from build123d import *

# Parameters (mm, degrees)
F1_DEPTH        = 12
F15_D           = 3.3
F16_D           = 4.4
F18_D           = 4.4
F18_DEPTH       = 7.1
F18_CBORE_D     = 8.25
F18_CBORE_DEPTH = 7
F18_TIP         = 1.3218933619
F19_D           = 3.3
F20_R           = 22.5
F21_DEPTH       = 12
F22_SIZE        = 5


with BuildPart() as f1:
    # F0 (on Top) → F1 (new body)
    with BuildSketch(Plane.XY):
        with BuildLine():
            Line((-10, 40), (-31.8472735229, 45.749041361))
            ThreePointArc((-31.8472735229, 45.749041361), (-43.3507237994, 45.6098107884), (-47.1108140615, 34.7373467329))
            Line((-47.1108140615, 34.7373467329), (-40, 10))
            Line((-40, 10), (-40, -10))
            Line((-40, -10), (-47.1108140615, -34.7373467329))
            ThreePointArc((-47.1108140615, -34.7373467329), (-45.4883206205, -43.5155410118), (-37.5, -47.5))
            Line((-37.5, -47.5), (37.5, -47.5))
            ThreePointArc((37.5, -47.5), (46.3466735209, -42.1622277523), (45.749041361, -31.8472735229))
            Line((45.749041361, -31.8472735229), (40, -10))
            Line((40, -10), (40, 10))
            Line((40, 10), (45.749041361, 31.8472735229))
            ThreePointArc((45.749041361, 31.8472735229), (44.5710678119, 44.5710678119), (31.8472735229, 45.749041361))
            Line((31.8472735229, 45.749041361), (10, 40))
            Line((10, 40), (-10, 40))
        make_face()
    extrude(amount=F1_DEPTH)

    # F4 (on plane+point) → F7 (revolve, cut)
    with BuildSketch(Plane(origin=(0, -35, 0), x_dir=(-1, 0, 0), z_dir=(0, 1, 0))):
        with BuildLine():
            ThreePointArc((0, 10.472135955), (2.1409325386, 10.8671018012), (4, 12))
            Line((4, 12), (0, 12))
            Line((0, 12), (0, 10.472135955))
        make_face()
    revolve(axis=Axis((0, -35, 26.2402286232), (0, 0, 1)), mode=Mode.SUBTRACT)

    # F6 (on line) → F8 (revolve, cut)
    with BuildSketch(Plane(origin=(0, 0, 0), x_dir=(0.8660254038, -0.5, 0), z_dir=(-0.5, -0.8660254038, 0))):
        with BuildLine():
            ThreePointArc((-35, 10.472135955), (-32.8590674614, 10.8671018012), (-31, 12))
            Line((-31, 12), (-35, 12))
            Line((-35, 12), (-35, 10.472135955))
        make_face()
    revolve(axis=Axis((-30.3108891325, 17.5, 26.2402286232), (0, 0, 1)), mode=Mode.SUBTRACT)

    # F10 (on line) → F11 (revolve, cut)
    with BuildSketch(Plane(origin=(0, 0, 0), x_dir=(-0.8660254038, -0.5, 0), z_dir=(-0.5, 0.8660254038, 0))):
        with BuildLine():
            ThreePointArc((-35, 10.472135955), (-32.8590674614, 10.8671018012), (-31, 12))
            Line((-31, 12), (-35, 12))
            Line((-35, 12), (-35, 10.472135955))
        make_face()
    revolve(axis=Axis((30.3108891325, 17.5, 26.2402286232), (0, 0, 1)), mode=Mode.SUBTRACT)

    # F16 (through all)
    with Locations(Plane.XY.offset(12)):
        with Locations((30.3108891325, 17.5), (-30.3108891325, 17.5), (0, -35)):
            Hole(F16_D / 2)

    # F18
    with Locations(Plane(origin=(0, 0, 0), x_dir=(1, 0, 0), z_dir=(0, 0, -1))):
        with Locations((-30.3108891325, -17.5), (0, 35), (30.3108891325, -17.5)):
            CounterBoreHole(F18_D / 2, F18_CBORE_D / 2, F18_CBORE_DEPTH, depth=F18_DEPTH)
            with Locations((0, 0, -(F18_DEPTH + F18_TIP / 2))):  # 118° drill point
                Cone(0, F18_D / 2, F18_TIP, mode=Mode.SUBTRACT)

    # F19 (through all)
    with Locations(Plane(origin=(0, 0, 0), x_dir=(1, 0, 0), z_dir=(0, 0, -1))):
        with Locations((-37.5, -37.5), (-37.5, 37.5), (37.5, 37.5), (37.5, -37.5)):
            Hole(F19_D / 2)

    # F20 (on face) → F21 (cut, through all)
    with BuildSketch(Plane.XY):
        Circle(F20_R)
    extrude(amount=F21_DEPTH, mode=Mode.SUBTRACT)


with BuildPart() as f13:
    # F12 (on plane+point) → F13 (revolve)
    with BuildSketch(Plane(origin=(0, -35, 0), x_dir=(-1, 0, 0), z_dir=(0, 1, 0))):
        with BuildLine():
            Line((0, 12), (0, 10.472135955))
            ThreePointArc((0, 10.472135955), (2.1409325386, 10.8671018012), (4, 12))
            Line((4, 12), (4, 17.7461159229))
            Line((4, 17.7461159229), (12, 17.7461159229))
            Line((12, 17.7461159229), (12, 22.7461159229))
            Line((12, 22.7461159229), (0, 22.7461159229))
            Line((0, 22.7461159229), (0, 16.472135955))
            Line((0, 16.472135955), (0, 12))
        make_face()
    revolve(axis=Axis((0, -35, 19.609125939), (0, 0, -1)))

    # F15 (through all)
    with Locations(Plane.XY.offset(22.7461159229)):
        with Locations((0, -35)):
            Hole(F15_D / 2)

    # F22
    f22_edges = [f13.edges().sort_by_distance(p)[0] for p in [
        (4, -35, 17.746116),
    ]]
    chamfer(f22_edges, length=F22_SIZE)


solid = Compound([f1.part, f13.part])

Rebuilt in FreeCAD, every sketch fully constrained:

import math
import FreeCAD as App
import Part
import Sketcher


def edges_at(feature, points):
    """Names of the edges that pass closest to the given points."""
    edges = feature.Shape.Edges
    near = lambda p: min(range(len(edges)), key=lambda i: edges[i].distToShape(Part.Vertex(*p))[0])
    return sorted({f"Edge{near(p) + 1}" for p in points})

doc = App.newDocument("Part")
params = doc.addObject("Spreadsheet::Sheet", "Params")
for row, (alias, value) in enumerate([
    ("sketch1_radius", "10 mm"),
    ("sketch1_width", "75 mm"),
    ("sketch1_width2", "20 mm"),
    ("pad1_length", "12 mm"),
    ("sketch2_radius", "6 mm"),
    ("sketch2_width", "4 mm"),
    ("groove_angle", "360 deg"),
    ("sketch3_radius", "6 mm"),
    ("sketch3_width", "4 mm"),
    ("groove2_angle", "360 deg"),
    ("sketch4_radius", "6 mm"),
    ("sketch4_width", "4 mm"),
    ("groove3_angle", "360 deg"),
    ("sketch5_diameter", "4.4 mm"),
    ("hole_diameter", "4.4 mm"),
    ("sketch6_diameter", "4.4 mm"),
    ("hole2_diameter", "4.4 mm"),
    ("hole2_depth", "7.1 mm"),
    ("hole2_cbore_diameter", "8.25 mm"),
    ("hole2_cbore_depth", "7 mm"),
    ("sketch7_diameter", "3.3 mm"),
    ("hole3_diameter", "3.3 mm"),
    ("sketch8_diameter", "45 mm"),
    ("sketch9_radius", "6 mm"),
    ("sketch9_width", "8 mm"),
    ("sketch9_width2", "12 mm"),
    ("sketch9_height", "5 mm"),
    ("revolution_angle", "360 deg"),
    ("sketch10_diameter", "3.3 mm"),
    ("hole4_diameter", "3.3 mm"),
    ("chamfer_size", "5 mm"),
], start=1):
    params.set(f"A{row}", alias)
    params.set(f"B{row}", "=" + value)
    params.setAlias(f"B{row}", alias)

body = doc.addObject("PartDesign::Body", "Body")

# Sketch on XY plane
sketch1 = body.newObject("Sketcher::SketchObject", "Sketch")
sketch1.AttachmentSupport = (doc.getObject("XY_Plane"), [""])
sketch1.MapMode = "FlatFace"
sketch1.addGeometry(Part.LineSegment(App.Vector(-10, 40, 0), App.Vector(-32, 46, 0)), False)
sketch1.addGeometry(Part.ArcOfCircle(Part.Circle(App.Vector(-38, 38, 0), App.Vector(0, 0, 1), 10), math.radians(56), math.radians(196)), False)
sketch1.addGeometry(Part.LineSegment(App.Vector(-47, 35, 0), App.Vector(-40, 10, 0)), False)
sketch1.addGeometry(Part.LineSegment(App.Vector(-40, 10, 0), App.Vector(-40, -10, 0)), False)
sketch1.addGeometry(Part.LineSegment(App.Vector(-40, -10, 0), App.Vector(-47, -35, 0)), False)
sketch1.addGeometry(Part.ArcOfCircle(Part.Circle(App.Vector(-38, -38, 0), App.Vector(0, 0, 1), 10), math.radians(164), math.radians(270)), False)
sketch1.addGeometry(Part.LineSegment(App.Vector(-38, -48, 0), App.Vector(38, -48, 0)), False)
sketch1.addGeometry(Part.ArcOfCircle(Part.Circle(App.Vector(38, -38, 0), App.Vector(0, 0, 1), 10), math.radians(-90), math.radians(34)), False)
sketch1.addGeometry(Part.LineSegment(App.Vector(46, -32, 0), App.Vector(40, -10, 0)), False)
sketch1.addGeometry(Part.LineSegment(App.Vector(40, -10, 0), App.Vector(40, 10, 0)), False)
sketch1.addGeometry(Part.LineSegment(App.Vector(40, 10, 0), App.Vector(46, 32, 0)), False)
sketch1.addGeometry(Part.ArcOfCircle(Part.Circle(App.Vector(38, 38, 0), App.Vector(0, 0, 1), 10), math.radians(-34), math.radians(124)), False)
sketch1.addGeometry(Part.LineSegment(App.Vector(32, 46, 0), App.Vector(10, 40, 0)), False)
sketch1.addGeometry(Part.LineSegment(App.Vector(10, 40, 0), App.Vector(-10, 40, 0)), False)
sketch1.addConstraint(Sketcher.Constraint("Coincident", 0, 2, 1, 1))
sketch1.addConstraint(Sketcher.Constraint("Tangent", 1, 2, 2, 1))
sketch1.addConstraint(Sketcher.Constraint("Coincident", 2, 2, 3, 1))
sketch1.addConstraint(Sketcher.Constraint("Coincident", 3, 2, 4, 1))
sketch1.addConstraint(Sketcher.Constraint("Tangent", 4, 2, 5, 1))
sketch1.addConstraint(Sketcher.Constraint("Tangent", 5, 2, 6, 1))
sketch1.addConstraint(Sketcher.Constraint("Tangent", 6, 2, 7, 1))
sketch1.addConstraint(Sketcher.Constraint("Coincident", 7, 2, 8, 1))
sketch1.addConstraint(Sketcher.Constraint("Coincident", 8, 2, 9, 1))
sketch1.addConstraint(Sketcher.Constraint("Coincident", 9, 2, 10, 1))
sketch1.addConstraint(Sketcher.Constraint("Coincident", 10, 2, 11, 1))
sketch1.addConstraint(Sketcher.Constraint("Coincident", 11, 2, 12, 1))
sketch1.addConstraint(Sketcher.Constraint("Coincident", 12, 2, 13, 1))
sketch1.addConstraint(Sketcher.Constraint("Coincident", 13, 2, 0, 1))
sketch1.addConstraint(Sketcher.Constraint("Vertical", 3))
sketch1.addConstraint(Sketcher.Constraint("Horizontal", 6))
sketch1.addConstraint(Sketcher.Constraint("Vertical", 9))
sketch1.addConstraint(Sketcher.Constraint("Horizontal", 13))
sketch1.addConstraint(Sketcher.Constraint("Equal", 1, 5))
sketch1.addConstraint(Sketcher.Constraint("Equal", 5, 7))
sketch1.addConstraint(Sketcher.Constraint("Equal", 7, 11))
sketch1.addConstraint(Sketcher.Constraint("Symmetric", 1, 3, 7, 3, -1, 1))
sketch1.addConstraint(Sketcher.Constraint("Symmetric", 5, 3, 11, 3, -1, 1))
sketch1.addConstraint(Sketcher.Constraint("Symmetric", 2, 2, 8, 2, -1, 1))
sketch1.addConstraint(Sketcher.Constraint("Symmetric", 0, 2, 11, 2, -2))
sketch1.addConstraint(Sketcher.Constraint("Perpendicular", 0, 10))
sketch1.addConstraint(Sketcher.Constraint("Perpendicular", 8, 12))
sketch1.addConstraint(Sketcher.Constraint("Horizontal", 3, 2, 8, 2))
sketch1.addConstraint(Sketcher.Constraint("Horizontal", 2, 2, 9, 2))
sketch1.addConstraint(Sketcher.Constraint("Vertical", 7, 2, 10, 2))
sketch1.addConstraint(Sketcher.Constraint("Equal", 13, 3))
sketch1.addConstraint(Sketcher.Constraint("Equal", 0, 8))
sketch1.addConstraint(Sketcher.Constraint("Radius", 1, 10.0))
sketch1.addConstraint(Sketcher.Constraint("DistanceX", 6, 1, 6, 2, 75.0))
sketch1.addConstraint(Sketcher.Constraint("DistanceX", 13, 2, 13, 1, 20.0))
sketch1.addConstraint(Sketcher.Constraint("DistanceX", 2, 2, -1, 1, 40.0))
sketch1.addConstraint(Sketcher.Constraint("DistanceY", -1, 1, 12, 2, 40.0))
sketch1.addConstraint(Sketcher.Constraint("DistanceY", -1, 1, 0, 2, 45.749041))
sketch1.setExpression("Constraints[32]", "Params.sketch1_radius")
sketch1.setExpression("Constraints[33]", "Params.sketch1_width")
sketch1.setExpression("Constraints[34]", "Params.sketch1_width2")
pad1 = body.newObject("PartDesign::Pad", "Pad")
pad1.Profile = sketch1
pad1.setExpression("Length", "Params.pad1_length")

# Sketch on XZ plane
sketch2 = body.newObject("Sketcher::SketchObject", "Sketch001")
sketch2.AttachmentSupport = (doc.getObject("XZ_Plane"), [""])
sketch2.MapMode = "FlatFace"
sketch2.AttachmentOffset = App.Placement(App.Vector(0, 0, 35), App.Rotation())
sketch2.addGeometry(Part.ArcOfCircle(Part.Circle(App.Vector(0, 16.5, 0), App.Vector(0, 0, 1), 6), math.radians(-132), math.radians(-90)), False)
sketch2.addGeometry(Part.LineSegment(App.Vector(-4, 12, 0), App.Vector(0, 12, 0)), False)
sketch2.addGeometry(Part.LineSegment(App.Vector(0, 12, 0), App.Vector(0, 10.5, 0)), False)
sketch2.addConstraint(Sketcher.Constraint("Coincident", 0, 1, 1, 1))
sketch2.addConstraint(Sketcher.Constraint("Coincident", 1, 2, 2, 1))
sketch2.addConstraint(Sketcher.Constraint("Coincident", 2, 2, 0, 2))
sketch2.addConstraint(Sketcher.Constraint("Horizontal", 1))
sketch2.addConstraint(Sketcher.Constraint("Vertical", 2))
sketch2.addConstraint(Sketcher.Constraint("PointOnObject", 0, 3, -2))
sketch2.addConstraint(Sketcher.Constraint("PointOnObject", 1, 2, -2))
sketch2.addConstraint(Sketcher.Constraint("Radius", 0, 6.0))
sketch2.addConstraint(Sketcher.Constraint("DistanceX", 1, 1, 1, 2, 4.0))
sketch2.addConstraint(Sketcher.Constraint("DistanceY", -1, 1, 0, 1, 12.0))
sketch2.setExpression("Constraints[7]", "Params.sketch2_radius")
sketch2.setExpression("Constraints[8]", "Params.sketch2_width")
groove = body.newObject("PartDesign::Groove", "Groove")
groove.Profile = sketch2
groove.ReferenceAxis = (sketch2, ["V_Axis"])
groove.setExpression("Angle", "Params.groove_angle")

# Sketch on an angled plane
sketch3 = body.newObject("Sketcher::SketchObject", "Sketch002")
sketch3.Placement = App.Placement(App.Vector(0, 0, 0), App.Rotation(App.Vector(0.866025404, -0.5, 0), App.Vector(0, 0, 1), App.Vector(-0.5, -0.866025404, 0), "ZXY"))
sketch3.addGeometry(Part.ArcOfCircle(Part.Circle(App.Vector(-35, 16.5, 0), App.Vector(0, 0, 1), 6), math.radians(-90), math.radians(-48)), False)
sketch3.addGeometry(Part.LineSegment(App.Vector(-31, 12, 0), App.Vector(-35, 12, 0)), False)
sketch3.addGeometry(Part.LineSegment(App.Vector(-35, 12, 0), App.Vector(-35, 10.5, 0)), False)
sketch3.addGeometry(Part.LineSegment(App.Vector(-35, 10.5, 0), App.Vector(-35, 16.5, 0)), True)  # axis
sketch3.addConstraint(Sketcher.Constraint("Coincident", 0, 2, 1, 1))
sketch3.addConstraint(Sketcher.Constraint("Coincident", 1, 2, 2, 1))
sketch3.addConstraint(Sketcher.Constraint("Coincident", 2, 2, 0, 1))
sketch3.addConstraint(Sketcher.Constraint("Horizontal", 1))
sketch3.addConstraint(Sketcher.Constraint("Vertical", 2))
sketch3.addConstraint(Sketcher.Constraint("Vertical", 3))
sketch3.addConstraint(Sketcher.Constraint("Coincident", 3, 1, 2, 2))
sketch3.addConstraint(Sketcher.Constraint("Coincident", 3, 2, 0, 3))
sketch3.addConstraint(Sketcher.Constraint("Radius", 0, 6.0))
sketch3.addConstraint(Sketcher.Constraint("DistanceX", 1, 2, 1, 1, 4.0))
sketch3.addConstraint(Sketcher.Constraint("DistanceX", 0, 3, -1, 1, 35.0))
sketch3.addConstraint(Sketcher.Constraint("DistanceY", -1, 1, 0, 2, 12.0))
sketch3.setExpression("Constraints[8]", "Params.sketch3_radius")
sketch3.setExpression("Constraints[9]", "Params.sketch3_width")
groove2 = body.newObject("PartDesign::Groove", "Groove001")
groove2.Profile = sketch3
groove2.ReferenceAxis = (sketch3, ["Axis0"])
groove2.setExpression("Angle", "Params.groove2_angle")

# Sketch on an angled plane
sketch4 = body.newObject("Sketcher::SketchObject", "Sketch003")
sketch4.Placement = App.Placement(App.Vector(0, 0, 0), App.Rotation(App.Vector(-0.866025404, -0.5, 0), App.Vector(0, 0, 1), App.Vector(-0.5, 0.866025404, 0), "ZXY"))
sketch4.addGeometry(Part.ArcOfCircle(Part.Circle(App.Vector(-35, 16.5, 0), App.Vector(0, 0, 1), 6), math.radians(-90), math.radians(-48)), False)
sketch4.addGeometry(Part.LineSegment(App.Vector(-31, 12, 0), App.Vector(-35, 12, 0)), False)
sketch4.addGeometry(Part.LineSegment(App.Vector(-35, 12, 0), App.Vector(-35, 10.5, 0)), False)
sketch4.addGeometry(Part.LineSegment(App.Vector(-35, 10.5, 0), App.Vector(-35, 16.5, 0)), True)  # axis
sketch4.addConstraint(Sketcher.Constraint("Coincident", 0, 2, 1, 1))
sketch4.addConstraint(Sketcher.Constraint("Coincident", 1, 2, 2, 1))
sketch4.addConstraint(Sketcher.Constraint("Coincident", 2, 2, 0, 1))
sketch4.addConstraint(Sketcher.Constraint("Horizontal", 1))
sketch4.addConstraint(Sketcher.Constraint("Vertical", 2))
sketch4.addConstraint(Sketcher.Constraint("Vertical", 3))
sketch4.addConstraint(Sketcher.Constraint("Coincident", 3, 1, 2, 2))
sketch4.addConstraint(Sketcher.Constraint("Coincident", 3, 2, 0, 3))
sketch4.addConstraint(Sketcher.Constraint("Radius", 0, 6.0))
sketch4.addConstraint(Sketcher.Constraint("DistanceX", 1, 2, 1, 1, 4.0))
sketch4.addConstraint(Sketcher.Constraint("DistanceX", 0, 3, -1, 1, 35.0))
sketch4.addConstraint(Sketcher.Constraint("DistanceY", -1, 1, 0, 2, 12.0))
sketch4.setExpression("Constraints[8]", "Params.sketch4_radius")
sketch4.setExpression("Constraints[9]", "Params.sketch4_width")
groove3 = body.newObject("PartDesign::Groove", "Groove002")
groove3.Profile = sketch4
groove3.ReferenceAxis = (sketch4, ["Axis0"])
groove3.setExpression("Angle", "Params.groove3_angle")

# Sketch on XY plane
sketch5 = body.newObject("Sketcher::SketchObject", "Sketch004")
sketch5.AttachmentSupport = (doc.getObject("XY_Plane"), [""])
sketch5.MapMode = "FlatFace"
sketch5.AttachmentOffset = App.Placement(App.Vector(0, 0, 12), App.Rotation())
sketch5.addGeometry(Part.Circle(App.Vector(30.3, 17.5, 0), App.Vector(0, 0, 1), 2.2), False)
sketch5.addGeometry(Part.Circle(App.Vector(-30.3, 17.5, 0), App.Vector(0, 0, 1), 2.2), False)
sketch5.addGeometry(Part.Circle(App.Vector(0, -35, 0), App.Vector(0, 0, 1), 2.2), False)
sketch5.addConstraint(Sketcher.Constraint("Equal", 0, 1))
sketch5.addConstraint(Sketcher.Constraint("Equal", 1, 2))
sketch5.addConstraint(Sketcher.Constraint("Symmetric", 0, 3, 1, 3, -2))
sketch5.addConstraint(Sketcher.Constraint("PointOnObject", 2, 3, -2))
sketch5.addConstraint(Sketcher.Constraint("Diameter", 0, 4.4))
sketch5.addConstraint(Sketcher.Constraint("DistanceY", 2, 3, -1, 1, 35.0))
sketch5.addConstraint(Sketcher.Constraint("DistanceY", -1, 1, 0, 3, 17.5))
sketch5.addConstraint(Sketcher.Constraint("DistanceX", -1, 1, 0, 3, 30.310889))
sketch5.setExpression("Constraints[4]", "Params.sketch5_diameter")
doc.recompute()
hole = body.newObject("PartDesign::Hole", "Hole")
hole.Profile = sketch5
hole.ThreadType = "None"
hole.setExpression("Diameter", "Params.hole_diameter")
hole.DepthType = "ThroughAll"

# Sketch on XY plane
sketch6 = body.newObject("Sketcher::SketchObject", "Sketch005")
sketch6.AttachmentSupport = (doc.getObject("XY_Plane"), [""])
sketch6.MapMode = "FlatFace"
sketch6.addGeometry(Part.Circle(App.Vector(-30.3, 17.5, 0), App.Vector(0, 0, 1), 2.2), False)
sketch6.addGeometry(Part.Circle(App.Vector(0, -35, 0), App.Vector(0, 0, 1), 2.2), False)
sketch6.addGeometry(Part.Circle(App.Vector(30.3, 17.5, 0), App.Vector(0, 0, 1), 2.2), False)
sketch6.addConstraint(Sketcher.Constraint("Equal", 0, 1))
sketch6.addConstraint(Sketcher.Constraint("Equal", 1, 2))
sketch6.addConstraint(Sketcher.Constraint("Symmetric", 0, 3, 2, 3, -2))
sketch6.addConstraint(Sketcher.Constraint("PointOnObject", 1, 3, -2))
sketch6.addConstraint(Sketcher.Constraint("Diameter", 0, 4.4))
sketch6.addConstraint(Sketcher.Constraint("DistanceY", 1, 3, -1, 1, 35.0))
sketch6.addConstraint(Sketcher.Constraint("DistanceY", -1, 1, 0, 3, 17.5))
sketch6.addConstraint(Sketcher.Constraint("DistanceX", 0, 3, -1, 1, 30.310889))
sketch6.setExpression("Constraints[4]", "Params.sketch6_diameter")
doc.recompute()
hole2 = body.newObject("PartDesign::Hole", "Hole001")
hole2.Profile = sketch6
hole2.ThreadType = "None"
hole2.setExpression("Diameter", "Params.hole2_diameter")
hole2.DepthType = "Dimension"
hole2.setExpression("Depth", "Params.hole2_depth")
hole2.DrillPoint = "Angled"
hole2.DrillPointAngle = 118
hole2.HoleCutType = "Counterbore"
hole2.setExpression("HoleCutDiameter", "Params.hole2_cbore_diameter")
hole2.setExpression("HoleCutDepth", "Params.hole2_cbore_depth")
hole2.Reversed = True

# Sketch on XY plane
sketch7 = body.newObject("Sketcher::SketchObject", "Sketch006")
sketch7.AttachmentSupport = (doc.getObject("XY_Plane"), [""])
sketch7.MapMode = "FlatFace"
sketch7.addGeometry(Part.Circle(App.Vector(-37.5, 37.5, 0), App.Vector(0, 0, 1), 1.6), False)
sketch7.addGeometry(Part.Circle(App.Vector(-37.5, -37.5, 0), App.Vector(0, 0, 1), 1.6), False)
sketch7.addGeometry(Part.Circle(App.Vector(37.5, -37.5, 0), App.Vector(0, 0, 1), 1.6), False)
sketch7.addGeometry(Part.Circle(App.Vector(37.5, 37.5, 0), App.Vector(0, 0, 1), 1.6), False)
sketch7.addConstraint(Sketcher.Constraint("Equal", 0, 1))
sketch7.addConstraint(Sketcher.Constraint("Equal", 1, 2))
sketch7.addConstraint(Sketcher.Constraint("Equal", 2, 3))
sketch7.addConstraint(Sketcher.Constraint("Symmetric", 0, 3, 2, 3, -1, 1))
sketch7.addConstraint(Sketcher.Constraint("Symmetric", 1, 3, 3, 3, -1, 1))
sketch7.addConstraint(Sketcher.Constraint("Symmetric", 1, 3, 2, 3, -2))
sketch7.addConstraint(Sketcher.Constraint("Diameter", 0, 3.3))
sketch7.addConstraint(Sketcher.Constraint("DistanceY", 1, 3, 0, 3, 75.0))
sketch7.addConstraint(Sketcher.Constraint("DistanceX", 1, 3, 2, 3, 75.0))
sketch7.setExpression("Constraints[6]", "Params.sketch7_diameter")
doc.recompute()
hole3 = body.newObject("PartDesign::Hole", "Hole002")
hole3.Profile = sketch7
hole3.ThreadType = "None"
hole3.setExpression("Diameter", "Params.hole3_diameter")
hole3.DepthType = "ThroughAll"
hole3.Reversed = True

# Sketch on XY plane
sketch8 = body.newObject("Sketcher::SketchObject", "Sketch007")
sketch8.AttachmentSupport = (doc.getObject("XY_Plane"), [""])
sketch8.MapMode = "FlatFace"
sketch8.addGeometry(Part.Circle(App.Vector(0, 0, 0), App.Vector(0, 0, 1), 22), False)
sketch8.addConstraint(Sketcher.Constraint("Coincident", 0, 3, -1, 1))
sketch8.addConstraint(Sketcher.Constraint("Diameter", 0, 45.0))
sketch8.setExpression("Constraints[1]", "Params.sketch8_diameter")
pocket1 = body.newObject("PartDesign::Pocket", "Pocket")
pocket1.Profile = sketch8
pocket1.Type = "ThroughAll"
pocket1.Reversed = True
body2 = doc.addObject("PartDesign::Body", "Body001")

# Sketch on XZ plane
sketch9 = body2.newObject("Sketcher::SketchObject", "Sketch008")
sketch9.AttachmentSupport = (doc.getObject("XZ_Plane001"), [""])
sketch9.MapMode = "FlatFace"
sketch9.AttachmentOffset = App.Placement(App.Vector(0, 0, 35), App.Rotation())
sketch9.addGeometry(Part.ArcOfCircle(Part.Circle(App.Vector(0, 16.5, 0), App.Vector(0, 0, 1), 6), math.radians(-132), math.radians(-90)), False)
sketch9.addGeometry(Part.LineSegment(App.Vector(-4, 12, 0), App.Vector(-4, 17.7, 0)), False)
sketch9.addGeometry(Part.LineSegment(App.Vector(-4, 17.7, 0), App.Vector(-12, 17.7, 0)), False)
sketch9.addGeometry(Part.LineSegment(App.Vector(-12, 17.7, 0), App.Vector(-12, 22.7, 0)), False)
sketch9.addGeometry(Part.LineSegment(App.Vector(-12, 22.7, 0), App.Vector(0, 22.7, 0)), False)
sketch9.addGeometry(Part.LineSegment(App.Vector(0, 22.7, 0), App.Vector(0, 10.5, 0)), False)
sketch9.addConstraint(Sketcher.Constraint("Coincident", 0, 1, 1, 1))
sketch9.addConstraint(Sketcher.Constraint("Coincident", 1, 2, 2, 1))
sketch9.addConstraint(Sketcher.Constraint("Coincident", 2, 2, 3, 1))
sketch9.addConstraint(Sketcher.Constraint("Coincident", 3, 2, 4, 1))
sketch9.addConstraint(Sketcher.Constraint("Coincident", 4, 2, 5, 1))
sketch9.addConstraint(Sketcher.Constraint("Coincident", 5, 2, 0, 2))
sketch9.addConstraint(Sketcher.Constraint("Vertical", 1))
sketch9.addConstraint(Sketcher.Constraint("Horizontal", 2))
sketch9.addConstraint(Sketcher.Constraint("Vertical", 3))
sketch9.addConstraint(Sketcher.Constraint("Horizontal", 4))
sketch9.addConstraint(Sketcher.Constraint("Vertical", 5))
sketch9.addConstraint(Sketcher.Constraint("PointOnObject", 0, 3, -2))
sketch9.addConstraint(Sketcher.Constraint("PointOnObject", 4, 2, -2))
sketch9.addConstraint(Sketcher.Constraint("Radius", 0, 6.0))
sketch9.addConstraint(Sketcher.Constraint("DistanceX", 2, 2, 2, 1, 8.0))
sketch9.addConstraint(Sketcher.Constraint("DistanceX", 4, 1, 4, 2, 12.0))
sketch9.addConstraint(Sketcher.Constraint("DistanceY", 3, 1, 3, 2, 5.0))
sketch9.addConstraint(Sketcher.Constraint("DistanceY", -1, 1, 0, 1, 12.0))
sketch9.addConstraint(Sketcher.Constraint("DistanceY", 5, 2, 5, 1, 12.27398))
sketch9.setExpression("Constraints[13]", "Params.sketch9_radius")
sketch9.setExpression("Constraints[14]", "Params.sketch9_width")
sketch9.setExpression("Constraints[15]", "Params.sketch9_width2")
sketch9.setExpression("Constraints[16]", "Params.sketch9_height")
revolution = body2.newObject("PartDesign::Revolution", "Revolution")
revolution.Profile = sketch9
revolution.ReferenceAxis = (sketch9, ["V_Axis"])
revolution.setExpression("Angle", "Params.revolution_angle")

# Sketch on XY plane
sketch10 = body2.newObject("Sketcher::SketchObject", "Sketch009")
sketch10.AttachmentSupport = (doc.getObject("XY_Plane001"), [""])
sketch10.MapMode = "FlatFace"
sketch10.AttachmentOffset = App.Placement(App.Vector(0, 0, 22.746116), App.Rotation())
sketch10.addGeometry(Part.Circle(App.Vector(0, -35, 0), App.Vector(0, 0, 1), 1.6), False)
sketch10.addConstraint(Sketcher.Constraint("PointOnObject", 0, 3, -2))
sketch10.addConstraint(Sketcher.Constraint("Diameter", 0, 3.3))
sketch10.addConstraint(Sketcher.Constraint("DistanceY", 0, 3, -1, 1, 35.0))
sketch10.setExpression("Constraints[1]", "Params.sketch10_diameter")
doc.recompute()
hole4 = body2.newObject("PartDesign::Hole", "Hole003")
hole4.Profile = sketch10
hole4.ThreadType = "None"
hole4.setExpression("Diameter", "Params.hole4_diameter")
hole4.DepthType = "ThroughAll"
doc.recompute()

chamfer = body2.newObject("PartDesign::Chamfer", "Chamfer")
chamfer.Base = (hole4, edges_at(hole4, [(4, -35, 17.746)]))
chamfer.setExpression("Size", "Params.chamfer_size")

doc.recompute()
